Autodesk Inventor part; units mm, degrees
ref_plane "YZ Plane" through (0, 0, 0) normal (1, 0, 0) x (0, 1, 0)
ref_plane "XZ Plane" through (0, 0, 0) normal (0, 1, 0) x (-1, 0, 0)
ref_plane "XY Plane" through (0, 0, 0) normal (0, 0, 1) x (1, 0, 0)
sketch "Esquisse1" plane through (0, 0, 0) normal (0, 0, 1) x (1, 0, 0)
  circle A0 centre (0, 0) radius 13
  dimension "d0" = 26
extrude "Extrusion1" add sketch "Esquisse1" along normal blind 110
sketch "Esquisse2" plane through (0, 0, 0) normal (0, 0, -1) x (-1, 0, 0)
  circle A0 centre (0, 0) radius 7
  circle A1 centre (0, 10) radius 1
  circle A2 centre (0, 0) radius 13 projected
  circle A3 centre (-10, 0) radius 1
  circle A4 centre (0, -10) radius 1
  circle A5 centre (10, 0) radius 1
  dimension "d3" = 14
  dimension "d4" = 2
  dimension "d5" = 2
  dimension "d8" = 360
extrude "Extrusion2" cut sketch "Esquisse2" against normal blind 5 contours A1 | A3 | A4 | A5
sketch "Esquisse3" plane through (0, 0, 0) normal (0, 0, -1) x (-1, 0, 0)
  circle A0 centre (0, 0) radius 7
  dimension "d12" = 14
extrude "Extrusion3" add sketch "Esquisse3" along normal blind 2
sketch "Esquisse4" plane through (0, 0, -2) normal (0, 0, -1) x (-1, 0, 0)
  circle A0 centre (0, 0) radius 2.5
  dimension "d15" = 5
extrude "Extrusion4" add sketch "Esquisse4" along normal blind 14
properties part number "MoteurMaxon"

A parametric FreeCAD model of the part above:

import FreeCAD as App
import Part
import Sketcher
Q = App.Units.Quantity

doc = App.newDocument("Part")
body = doc.addObject("PartDesign::Body", "Body")

# Sketch on XY plane
sketch1 = doc.addObject("Sketcher::SketchObject", "Sketch")
body.addObject(sketch1)
sketch1.AttachmentSupport = (doc.XY_Plane, [""])
sketch1.MapMode = "FlatFace"
sketch1.addGeometry(Part.Circle(App.Vector(0, 0, 0), App.Vector(0, 0, 1), 13), False)
sketch1.addConstraint(Sketcher.Constraint("Coincident", 0, 3, -1, 1))
sketch1.addConstraint(Sketcher.Constraint("Diameter", 0, Q("26 mm")))
pad1 = doc.addObject("PartDesign::Pad", "Pad")
body.addObject(pad1)
pad1.Profile = sketch1
pad1.Length = 110

# Sketch on XY plane
sketch2 = doc.addObject("Sketcher::SketchObject", "Sketch001")
body.addObject(sketch2)
sketch2.AttachmentSupport = (doc.XY_Plane, [""])
sketch2.MapMode = "FlatFace"
sketch2.addGeometry(Part.Circle(App.Vector(0, 10, 0), App.Vector(0, 0, 1), 1), False)
sketch2.addGeometry(Part.Circle(App.Vector(10, 0, 0), App.Vector(0, 0, 1), 1), False)
sketch2.addGeometry(Part.Circle(App.Vector(0, -10, 0), App.Vector(0, 0, 1), 1), False)
sketch2.addGeometry(Part.Circle(App.Vector(-10, 0, 0), App.Vector(0, 0, 1), 1), False)
sketch2.addConstraint(Sketcher.Constraint("Equal", 0, 1))
sketch2.addConstraint(Sketcher.Constraint("Equal", 1, 2))
sketch2.addConstraint(Sketcher.Constraint("Equal", 2, 3))
sketch2.addConstraint(Sketcher.Constraint("Symmetric", 0, 3, 2, 3, -1, 1))
sketch2.addConstraint(Sketcher.Constraint("Symmetric", 1, 3, 3, 3, -1, 1))
sketch2.addConstraint(Sketcher.Constraint("PointOnObject", 0, 3, -2))
sketch2.addConstraint(Sketcher.Constraint("PointOnObject", 1, 3, -1))
sketch2.addConstraint(Sketcher.Constraint("Diameter", 0, Q("2 mm")))
sketch2.addConstraint(Sketcher.Constraint("DistanceY", -1, 1, 0, 3, Q("10 mm")))
sketch2.addConstraint(Sketcher.Constraint("DistanceX", -1, 1, 1, 3, Q("10 mm")))
pocket1 = doc.addObject("PartDesign::Pocket", "Pocket")
body.addObject(pocket1)
pocket1.Profile = sketch2
pocket1.Length = 5
pocket1.Reversed = True

# Sketch on XY plane
sketch3 = doc.addObject("Sketcher::SketchObject", "Sketch002")
body.addObject(sketch3)
sketch3.AttachmentSupport = (doc.XY_Plane, [""])
sketch3.MapMode = "FlatFace"
sketch3.addGeometry(Part.Circle(App.Vector(0, 0, 0), App.Vector(0, 0, 1), 7), False)
sketch3.addConstraint(Sketcher.Constraint("Coincident", 0, 3, -1, 1))
sketch3.addConstraint(Sketcher.Constraint("Diameter", 0, Q("14 mm")))
pad2 = doc.addObject("PartDesign::Pad", "Pad001")
body.addObject(pad2)
pad2.Profile = sketch3
pad2.Length = 2
pad2.Reversed = True

# Sketch on XY plane
sketch4 = doc.addObject("Sketcher::SketchObject", "Sketch003")
body.addObject(sketch4)
sketch4.AttachmentSupport = (doc.XY_Plane, [""])
sketch4.MapMode = "FlatFace"
sketch4.AttachmentOffset = App.Placement(App.Vector(0, 0, -2), App.Rotation())
sketch4.addGeometry(Part.Circle(App.Vector(0, 0, 0), App.Vector(0, 0, 1), 2.5), False)
sketch4.addConstraint(Sketcher.Constraint("Coincident", 0, 3, -1, 1))
sketch4.addConstraint(Sketcher.Constraint("Diameter", 0, Q("5 mm")))
pad3 = doc.addObject("PartDesign::Pad", "Pad002")
body.addObject(pad3)
pad3.Profile = sketch4
pad3.Length = 14
pad3.Reversed = True

doc.recompute()
